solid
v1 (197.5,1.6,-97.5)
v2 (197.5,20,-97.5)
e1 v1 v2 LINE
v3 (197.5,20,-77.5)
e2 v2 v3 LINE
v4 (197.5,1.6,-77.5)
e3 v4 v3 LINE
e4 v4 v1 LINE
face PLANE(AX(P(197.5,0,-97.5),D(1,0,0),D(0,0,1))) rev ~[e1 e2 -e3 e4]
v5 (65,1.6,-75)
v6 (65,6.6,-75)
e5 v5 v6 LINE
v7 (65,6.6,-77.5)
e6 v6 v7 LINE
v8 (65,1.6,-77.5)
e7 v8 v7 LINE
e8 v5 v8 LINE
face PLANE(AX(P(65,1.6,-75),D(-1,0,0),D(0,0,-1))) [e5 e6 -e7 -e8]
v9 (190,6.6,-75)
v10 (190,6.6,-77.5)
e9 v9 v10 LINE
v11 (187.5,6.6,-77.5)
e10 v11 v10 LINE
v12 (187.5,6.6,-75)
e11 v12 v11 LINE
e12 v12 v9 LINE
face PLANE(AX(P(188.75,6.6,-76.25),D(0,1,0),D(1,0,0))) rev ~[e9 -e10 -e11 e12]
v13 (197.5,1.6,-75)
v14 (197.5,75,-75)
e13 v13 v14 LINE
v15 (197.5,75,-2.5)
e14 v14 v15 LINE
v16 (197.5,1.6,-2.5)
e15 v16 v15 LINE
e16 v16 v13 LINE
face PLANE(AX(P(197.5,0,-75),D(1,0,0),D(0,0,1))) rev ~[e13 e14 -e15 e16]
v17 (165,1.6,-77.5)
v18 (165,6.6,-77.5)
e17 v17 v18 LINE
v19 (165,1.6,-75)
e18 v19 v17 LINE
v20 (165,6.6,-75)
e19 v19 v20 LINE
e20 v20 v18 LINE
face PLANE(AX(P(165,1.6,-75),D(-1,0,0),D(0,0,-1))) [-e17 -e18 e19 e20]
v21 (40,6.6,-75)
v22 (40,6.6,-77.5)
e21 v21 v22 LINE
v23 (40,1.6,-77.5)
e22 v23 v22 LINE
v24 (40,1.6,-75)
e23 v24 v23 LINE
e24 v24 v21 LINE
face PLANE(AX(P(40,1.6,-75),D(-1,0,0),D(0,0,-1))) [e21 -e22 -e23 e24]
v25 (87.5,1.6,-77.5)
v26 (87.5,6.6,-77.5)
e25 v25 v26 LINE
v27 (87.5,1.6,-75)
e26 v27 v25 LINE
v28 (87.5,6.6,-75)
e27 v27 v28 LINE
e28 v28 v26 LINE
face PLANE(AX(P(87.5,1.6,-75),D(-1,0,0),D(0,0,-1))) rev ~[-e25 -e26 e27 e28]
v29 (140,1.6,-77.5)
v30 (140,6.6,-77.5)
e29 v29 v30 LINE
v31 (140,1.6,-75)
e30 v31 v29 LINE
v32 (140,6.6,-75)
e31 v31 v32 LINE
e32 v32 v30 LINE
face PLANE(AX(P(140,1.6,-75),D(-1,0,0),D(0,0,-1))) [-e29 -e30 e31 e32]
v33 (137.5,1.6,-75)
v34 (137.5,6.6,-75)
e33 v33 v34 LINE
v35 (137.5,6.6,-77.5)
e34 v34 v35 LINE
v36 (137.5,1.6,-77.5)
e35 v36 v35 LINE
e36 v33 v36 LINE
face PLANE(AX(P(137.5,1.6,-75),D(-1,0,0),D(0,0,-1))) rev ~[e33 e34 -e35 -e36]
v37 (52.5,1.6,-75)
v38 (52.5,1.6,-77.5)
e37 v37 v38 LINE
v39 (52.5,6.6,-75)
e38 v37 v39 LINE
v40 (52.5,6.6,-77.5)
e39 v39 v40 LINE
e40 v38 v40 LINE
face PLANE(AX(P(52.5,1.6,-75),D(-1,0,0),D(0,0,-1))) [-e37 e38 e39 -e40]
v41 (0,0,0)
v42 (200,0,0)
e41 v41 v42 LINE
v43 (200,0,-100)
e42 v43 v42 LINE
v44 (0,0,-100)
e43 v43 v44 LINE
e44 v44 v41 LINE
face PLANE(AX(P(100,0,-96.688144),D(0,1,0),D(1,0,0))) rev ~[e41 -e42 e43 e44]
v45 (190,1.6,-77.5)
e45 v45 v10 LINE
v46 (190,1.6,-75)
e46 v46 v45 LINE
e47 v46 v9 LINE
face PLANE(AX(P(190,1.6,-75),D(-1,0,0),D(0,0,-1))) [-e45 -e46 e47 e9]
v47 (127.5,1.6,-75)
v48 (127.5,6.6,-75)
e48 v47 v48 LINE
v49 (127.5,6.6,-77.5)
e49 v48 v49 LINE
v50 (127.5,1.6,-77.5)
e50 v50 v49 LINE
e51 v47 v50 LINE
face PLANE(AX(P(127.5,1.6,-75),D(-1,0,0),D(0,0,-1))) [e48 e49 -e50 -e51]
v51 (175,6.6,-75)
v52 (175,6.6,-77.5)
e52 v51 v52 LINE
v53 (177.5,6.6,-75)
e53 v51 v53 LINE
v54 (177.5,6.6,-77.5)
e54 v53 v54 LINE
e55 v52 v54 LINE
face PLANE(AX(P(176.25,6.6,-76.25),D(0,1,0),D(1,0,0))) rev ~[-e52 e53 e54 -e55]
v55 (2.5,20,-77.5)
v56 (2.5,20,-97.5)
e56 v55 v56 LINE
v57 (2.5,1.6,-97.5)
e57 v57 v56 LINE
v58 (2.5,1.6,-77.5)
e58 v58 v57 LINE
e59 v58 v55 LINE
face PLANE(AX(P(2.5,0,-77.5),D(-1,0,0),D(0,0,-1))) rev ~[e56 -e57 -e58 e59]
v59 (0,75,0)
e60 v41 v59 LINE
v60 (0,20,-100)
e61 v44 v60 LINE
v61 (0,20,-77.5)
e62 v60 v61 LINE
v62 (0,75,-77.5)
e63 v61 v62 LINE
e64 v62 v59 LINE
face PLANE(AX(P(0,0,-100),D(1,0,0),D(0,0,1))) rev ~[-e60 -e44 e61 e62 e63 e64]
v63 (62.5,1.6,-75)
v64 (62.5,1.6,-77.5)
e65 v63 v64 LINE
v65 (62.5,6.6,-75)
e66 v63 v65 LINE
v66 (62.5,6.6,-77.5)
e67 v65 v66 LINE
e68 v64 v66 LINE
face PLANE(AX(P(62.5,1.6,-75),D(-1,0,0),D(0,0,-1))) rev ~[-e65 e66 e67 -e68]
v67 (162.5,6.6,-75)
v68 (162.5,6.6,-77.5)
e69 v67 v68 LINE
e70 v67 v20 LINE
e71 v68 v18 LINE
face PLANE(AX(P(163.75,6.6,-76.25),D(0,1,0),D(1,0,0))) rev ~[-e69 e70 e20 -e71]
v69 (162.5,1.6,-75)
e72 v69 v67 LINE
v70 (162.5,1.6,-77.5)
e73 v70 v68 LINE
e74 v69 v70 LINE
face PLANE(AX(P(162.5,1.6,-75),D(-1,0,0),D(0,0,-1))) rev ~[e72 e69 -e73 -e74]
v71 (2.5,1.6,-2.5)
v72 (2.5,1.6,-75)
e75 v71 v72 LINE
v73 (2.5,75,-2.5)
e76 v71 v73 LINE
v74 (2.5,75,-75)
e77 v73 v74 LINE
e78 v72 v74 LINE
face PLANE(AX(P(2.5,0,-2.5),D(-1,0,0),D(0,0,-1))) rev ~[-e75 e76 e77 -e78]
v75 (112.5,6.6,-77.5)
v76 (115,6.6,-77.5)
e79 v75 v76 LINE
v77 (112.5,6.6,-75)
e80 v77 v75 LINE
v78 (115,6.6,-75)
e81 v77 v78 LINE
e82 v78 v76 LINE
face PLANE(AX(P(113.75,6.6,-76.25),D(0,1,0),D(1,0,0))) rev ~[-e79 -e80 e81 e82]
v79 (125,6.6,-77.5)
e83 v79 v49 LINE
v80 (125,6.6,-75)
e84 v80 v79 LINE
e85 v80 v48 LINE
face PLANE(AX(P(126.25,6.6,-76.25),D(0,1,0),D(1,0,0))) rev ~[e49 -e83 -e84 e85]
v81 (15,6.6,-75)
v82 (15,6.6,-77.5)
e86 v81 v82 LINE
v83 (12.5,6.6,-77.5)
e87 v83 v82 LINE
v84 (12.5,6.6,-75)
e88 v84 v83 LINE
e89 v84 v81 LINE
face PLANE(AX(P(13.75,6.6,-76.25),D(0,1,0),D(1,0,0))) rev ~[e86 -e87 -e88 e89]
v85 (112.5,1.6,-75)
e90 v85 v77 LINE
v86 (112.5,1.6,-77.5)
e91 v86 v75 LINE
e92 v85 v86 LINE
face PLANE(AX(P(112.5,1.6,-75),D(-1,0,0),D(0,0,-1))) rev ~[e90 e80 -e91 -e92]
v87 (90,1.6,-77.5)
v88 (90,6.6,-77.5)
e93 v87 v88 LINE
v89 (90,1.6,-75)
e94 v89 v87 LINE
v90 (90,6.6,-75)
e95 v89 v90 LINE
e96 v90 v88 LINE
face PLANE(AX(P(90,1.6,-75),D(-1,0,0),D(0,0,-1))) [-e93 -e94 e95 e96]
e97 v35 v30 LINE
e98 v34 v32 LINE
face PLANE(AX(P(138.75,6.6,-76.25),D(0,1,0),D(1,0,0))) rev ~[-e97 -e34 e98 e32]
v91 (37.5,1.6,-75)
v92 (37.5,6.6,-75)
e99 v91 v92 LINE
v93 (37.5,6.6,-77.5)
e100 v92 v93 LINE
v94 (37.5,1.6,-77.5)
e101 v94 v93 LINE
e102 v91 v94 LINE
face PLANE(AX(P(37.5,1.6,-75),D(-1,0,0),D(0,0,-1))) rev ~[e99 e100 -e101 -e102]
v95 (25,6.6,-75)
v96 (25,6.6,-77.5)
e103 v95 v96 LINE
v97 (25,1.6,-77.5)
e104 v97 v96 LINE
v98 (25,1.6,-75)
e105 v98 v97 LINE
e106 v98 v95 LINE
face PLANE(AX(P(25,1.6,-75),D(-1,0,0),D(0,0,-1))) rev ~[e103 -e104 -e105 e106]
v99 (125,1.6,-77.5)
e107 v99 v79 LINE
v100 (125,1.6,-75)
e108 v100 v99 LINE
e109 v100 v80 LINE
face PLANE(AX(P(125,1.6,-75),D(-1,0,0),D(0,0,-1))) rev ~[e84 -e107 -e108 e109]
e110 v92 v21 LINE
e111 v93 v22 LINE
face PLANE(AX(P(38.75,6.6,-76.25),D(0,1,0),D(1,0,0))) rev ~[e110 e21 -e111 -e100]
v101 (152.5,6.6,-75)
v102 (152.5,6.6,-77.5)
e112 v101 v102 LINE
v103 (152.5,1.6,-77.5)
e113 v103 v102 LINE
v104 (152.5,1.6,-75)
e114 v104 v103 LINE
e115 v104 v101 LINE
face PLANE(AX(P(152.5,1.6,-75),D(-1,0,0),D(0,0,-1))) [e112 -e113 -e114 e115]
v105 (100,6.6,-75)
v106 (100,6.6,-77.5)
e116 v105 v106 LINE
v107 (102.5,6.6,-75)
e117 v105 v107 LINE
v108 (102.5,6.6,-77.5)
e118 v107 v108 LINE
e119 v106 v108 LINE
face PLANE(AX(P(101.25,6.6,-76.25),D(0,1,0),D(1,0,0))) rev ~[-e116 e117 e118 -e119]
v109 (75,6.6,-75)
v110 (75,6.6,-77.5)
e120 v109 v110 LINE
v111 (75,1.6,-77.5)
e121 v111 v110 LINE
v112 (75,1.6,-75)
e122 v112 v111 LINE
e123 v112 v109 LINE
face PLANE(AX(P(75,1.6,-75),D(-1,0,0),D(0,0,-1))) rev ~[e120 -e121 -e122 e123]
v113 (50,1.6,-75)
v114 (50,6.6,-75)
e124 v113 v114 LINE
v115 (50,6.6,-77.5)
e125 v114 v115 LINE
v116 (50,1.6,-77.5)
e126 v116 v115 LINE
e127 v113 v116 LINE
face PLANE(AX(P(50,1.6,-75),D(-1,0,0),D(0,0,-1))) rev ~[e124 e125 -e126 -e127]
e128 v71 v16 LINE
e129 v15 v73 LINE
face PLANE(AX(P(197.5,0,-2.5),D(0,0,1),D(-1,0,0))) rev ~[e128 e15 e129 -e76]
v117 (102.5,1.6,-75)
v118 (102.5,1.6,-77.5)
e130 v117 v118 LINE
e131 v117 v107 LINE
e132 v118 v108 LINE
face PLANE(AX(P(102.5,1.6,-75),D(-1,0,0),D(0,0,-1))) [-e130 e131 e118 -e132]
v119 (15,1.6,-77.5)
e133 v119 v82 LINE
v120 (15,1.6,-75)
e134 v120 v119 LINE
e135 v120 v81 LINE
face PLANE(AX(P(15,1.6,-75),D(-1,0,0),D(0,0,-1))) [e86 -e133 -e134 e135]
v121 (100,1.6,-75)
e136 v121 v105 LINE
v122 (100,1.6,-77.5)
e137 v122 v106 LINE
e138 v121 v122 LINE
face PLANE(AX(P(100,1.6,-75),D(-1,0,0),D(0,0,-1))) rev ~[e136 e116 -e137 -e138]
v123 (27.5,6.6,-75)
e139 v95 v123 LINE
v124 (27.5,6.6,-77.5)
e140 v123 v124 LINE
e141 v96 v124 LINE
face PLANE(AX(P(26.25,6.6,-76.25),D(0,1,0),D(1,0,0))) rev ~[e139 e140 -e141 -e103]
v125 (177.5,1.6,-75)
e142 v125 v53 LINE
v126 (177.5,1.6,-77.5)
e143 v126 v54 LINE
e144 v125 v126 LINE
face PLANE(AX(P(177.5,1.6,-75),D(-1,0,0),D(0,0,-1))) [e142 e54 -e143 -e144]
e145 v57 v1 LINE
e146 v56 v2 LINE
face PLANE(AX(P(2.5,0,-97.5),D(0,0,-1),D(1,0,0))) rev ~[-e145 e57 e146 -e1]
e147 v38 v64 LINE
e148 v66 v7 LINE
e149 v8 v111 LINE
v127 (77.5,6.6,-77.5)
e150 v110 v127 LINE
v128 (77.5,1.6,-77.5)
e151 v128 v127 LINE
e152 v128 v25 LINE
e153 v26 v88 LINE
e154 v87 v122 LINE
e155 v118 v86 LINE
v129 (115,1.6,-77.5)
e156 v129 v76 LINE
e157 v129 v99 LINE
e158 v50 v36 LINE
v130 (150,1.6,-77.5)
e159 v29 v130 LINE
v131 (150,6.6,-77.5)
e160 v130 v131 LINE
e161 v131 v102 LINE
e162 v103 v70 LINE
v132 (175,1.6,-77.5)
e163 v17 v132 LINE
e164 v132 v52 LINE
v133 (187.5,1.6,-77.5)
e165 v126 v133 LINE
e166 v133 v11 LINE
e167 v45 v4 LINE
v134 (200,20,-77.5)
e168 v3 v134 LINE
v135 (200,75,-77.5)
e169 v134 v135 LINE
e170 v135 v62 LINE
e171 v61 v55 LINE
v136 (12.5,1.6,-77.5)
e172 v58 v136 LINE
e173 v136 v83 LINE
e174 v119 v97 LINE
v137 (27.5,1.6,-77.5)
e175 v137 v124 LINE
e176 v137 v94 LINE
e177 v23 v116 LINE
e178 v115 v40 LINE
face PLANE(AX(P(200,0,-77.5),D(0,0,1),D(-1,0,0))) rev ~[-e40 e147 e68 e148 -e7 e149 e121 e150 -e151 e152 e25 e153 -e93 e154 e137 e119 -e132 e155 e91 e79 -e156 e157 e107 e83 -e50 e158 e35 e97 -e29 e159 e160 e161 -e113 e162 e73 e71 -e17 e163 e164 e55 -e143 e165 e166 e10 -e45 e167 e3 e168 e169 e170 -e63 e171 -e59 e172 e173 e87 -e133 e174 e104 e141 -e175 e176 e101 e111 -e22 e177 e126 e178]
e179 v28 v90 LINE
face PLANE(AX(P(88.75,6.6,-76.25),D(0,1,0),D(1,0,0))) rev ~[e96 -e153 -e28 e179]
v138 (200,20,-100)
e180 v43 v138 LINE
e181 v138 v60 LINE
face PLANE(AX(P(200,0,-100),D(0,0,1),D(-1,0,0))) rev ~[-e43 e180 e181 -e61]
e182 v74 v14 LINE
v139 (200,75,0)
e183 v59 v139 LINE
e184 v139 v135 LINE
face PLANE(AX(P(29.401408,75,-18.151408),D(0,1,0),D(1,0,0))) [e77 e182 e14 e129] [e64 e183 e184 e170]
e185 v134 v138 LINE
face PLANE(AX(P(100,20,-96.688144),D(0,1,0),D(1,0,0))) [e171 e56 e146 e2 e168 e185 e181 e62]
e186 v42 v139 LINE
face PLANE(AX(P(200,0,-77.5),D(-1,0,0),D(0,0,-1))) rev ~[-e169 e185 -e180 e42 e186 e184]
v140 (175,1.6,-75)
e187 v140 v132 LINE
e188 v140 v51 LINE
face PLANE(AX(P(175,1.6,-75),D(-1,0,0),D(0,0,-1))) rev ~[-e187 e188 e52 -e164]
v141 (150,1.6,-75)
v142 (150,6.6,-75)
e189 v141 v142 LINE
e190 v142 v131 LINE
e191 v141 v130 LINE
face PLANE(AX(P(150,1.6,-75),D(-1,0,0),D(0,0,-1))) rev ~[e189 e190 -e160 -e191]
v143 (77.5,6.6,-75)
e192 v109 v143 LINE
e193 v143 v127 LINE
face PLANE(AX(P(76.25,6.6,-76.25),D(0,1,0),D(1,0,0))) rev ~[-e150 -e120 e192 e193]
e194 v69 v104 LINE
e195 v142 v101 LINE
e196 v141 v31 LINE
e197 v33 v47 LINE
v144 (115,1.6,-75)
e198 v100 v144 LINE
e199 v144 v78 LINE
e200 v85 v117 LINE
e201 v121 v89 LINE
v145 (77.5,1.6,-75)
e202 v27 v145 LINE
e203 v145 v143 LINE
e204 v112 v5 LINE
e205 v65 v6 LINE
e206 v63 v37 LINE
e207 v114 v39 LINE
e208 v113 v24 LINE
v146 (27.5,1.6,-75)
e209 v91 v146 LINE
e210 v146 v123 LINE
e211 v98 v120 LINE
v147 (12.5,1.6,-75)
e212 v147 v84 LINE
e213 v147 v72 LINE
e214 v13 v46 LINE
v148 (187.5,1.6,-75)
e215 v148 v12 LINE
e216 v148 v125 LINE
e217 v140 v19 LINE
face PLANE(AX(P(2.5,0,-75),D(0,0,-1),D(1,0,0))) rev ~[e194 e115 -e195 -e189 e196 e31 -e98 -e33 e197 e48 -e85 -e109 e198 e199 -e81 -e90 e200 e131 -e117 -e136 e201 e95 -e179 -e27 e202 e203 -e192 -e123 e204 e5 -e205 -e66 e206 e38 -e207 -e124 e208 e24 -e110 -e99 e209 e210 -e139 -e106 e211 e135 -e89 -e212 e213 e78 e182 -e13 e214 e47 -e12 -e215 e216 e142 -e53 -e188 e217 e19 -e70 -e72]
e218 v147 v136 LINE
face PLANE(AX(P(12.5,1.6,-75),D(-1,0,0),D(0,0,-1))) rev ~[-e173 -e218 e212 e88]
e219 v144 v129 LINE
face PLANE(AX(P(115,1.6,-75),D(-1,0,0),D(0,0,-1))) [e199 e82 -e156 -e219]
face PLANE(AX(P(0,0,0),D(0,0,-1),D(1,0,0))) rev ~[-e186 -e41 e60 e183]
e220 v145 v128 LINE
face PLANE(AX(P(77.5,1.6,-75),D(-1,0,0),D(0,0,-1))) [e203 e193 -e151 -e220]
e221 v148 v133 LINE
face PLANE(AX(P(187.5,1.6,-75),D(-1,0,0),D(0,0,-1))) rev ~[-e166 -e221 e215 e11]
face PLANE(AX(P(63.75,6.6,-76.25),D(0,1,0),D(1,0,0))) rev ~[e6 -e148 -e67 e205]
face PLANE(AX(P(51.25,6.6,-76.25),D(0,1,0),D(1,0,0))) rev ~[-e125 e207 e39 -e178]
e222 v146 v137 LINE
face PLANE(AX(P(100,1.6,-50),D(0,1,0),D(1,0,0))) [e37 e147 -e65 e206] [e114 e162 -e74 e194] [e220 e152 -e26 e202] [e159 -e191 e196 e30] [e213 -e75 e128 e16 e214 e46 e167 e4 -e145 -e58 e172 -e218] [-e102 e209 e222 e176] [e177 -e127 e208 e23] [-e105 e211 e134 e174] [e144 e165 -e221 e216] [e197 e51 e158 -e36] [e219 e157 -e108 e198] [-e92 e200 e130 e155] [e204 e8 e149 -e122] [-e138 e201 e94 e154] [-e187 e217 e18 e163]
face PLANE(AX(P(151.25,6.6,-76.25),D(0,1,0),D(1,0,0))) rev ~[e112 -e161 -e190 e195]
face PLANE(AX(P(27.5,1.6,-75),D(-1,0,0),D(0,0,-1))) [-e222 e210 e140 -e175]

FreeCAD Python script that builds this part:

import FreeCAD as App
import Part
import Sketcher
Q = App.Units.Quantity

doc = App.newDocument("Part")
body = doc.addObject("PartDesign::Body", "Body")

# Sketch on XZ plane
sketch1 = doc.addObject("Sketcher::SketchObject", "Sketch")
body.addObject(sketch1)
sketch1.AttachmentSupport = (doc.XZ_Plane, [""])
sketch1.MapMode = "FlatFace"
sketch1.addGeometry(Part.LineSegment(App.Vector(2, -98, 0), App.Vector(2, -2, 0)), False)
sketch1.addGeometry(Part.LineSegment(App.Vector(2, -2, 0), App.Vector(198, -2, 0)), False)
sketch1.addGeometry(Part.LineSegment(App.Vector(198, -2, 0), App.Vector(198, -98, 0)), False)
sketch1.addGeometry(Part.LineSegment(App.Vector(198, -98, 0), App.Vector(2, -98, 0)), False)
sketch1.addConstraint(Sketcher.Constraint("Coincident", 0, 2, 1, 1))
sketch1.addConstraint(Sketcher.Constraint("Coincident", 1, 2, 2, 1))
sketch1.addConstraint(Sketcher.Constraint("Coincident", 2, 2, 3, 1))
sketch1.addConstraint(Sketcher.Constraint("Coincident", 3, 2, 0, 1))
sketch1.addConstraint(Sketcher.Constraint("Vertical", 0))
sketch1.addConstraint(Sketcher.Constraint("Horizontal", 1))
sketch1.addConstraint(Sketcher.Constraint("Vertical", 2))
sketch1.addConstraint(Sketcher.Constraint("Horizontal", 3))
sketch1.addConstraint(Sketcher.Constraint("DistanceX", 1, 1, 1, 2, Q("195 mm")))
sketch1.addConstraint(Sketcher.Constraint("DistanceY", 0, 1, 0, 2, Q("95 mm")))
sketch1.addConstraint(Sketcher.Constraint("DistanceX", -1, 1, 0, 2, Q("2.5 mm")))
sketch1.addConstraint(Sketcher.Constraint("DistanceY", 0, 2, -1, 1, Q("2.5 mm")))
pad1 = doc.addObject("PartDesign::Pad", "Pad")
body.addObject(pad1)
pad1.Profile = sketch1
pad1.Length = 1.6
pad1.Reversed = True

# Sketch on XZ plane
sketch2 = doc.addObject("Sketcher::SketchObject", "Sketch001")
body.addObject(sketch2)
sketch2.AttachmentSupport = (doc.XZ_Plane, [""])
sketch2.MapMode = "FlatFace"
sketch2.addGeometry(Part.LineSegment(App.Vector(0, 0, 0), App.Vector(200, 0, 0)), False)
sketch2.addGeometry(Part.LineSegment(App.Vector(200, 0, 0), App.Vector(200, -78, 0)), False)
sketch2.addGeometry(Part.LineSegment(App.Vector(200, -78, 0), App.Vector(0, -78, 0)), False)
sketch2.addGeometry(Part.LineSegment(App.Vector(0, -78, 0), App.Vector(0, 0, 0)), False)
sketch2.addGeometry(Part.LineSegment(App.Vector(198, -75, 0), App.Vector(198, -2, 0)), False)
sketch2.addGeometry(Part.LineSegment(App.Vector(198, -2, 0), App.Vector(2, -2, 0)), False)
sketch2.addGeometry(Part.LineSegment(App.Vector(2, -2, 0), App.Vector(2, -75, 0)), False)
sketch2.addGeometry(Part.LineSegment(App.Vector(2, -75, 0), App.Vector(198, -75, 0)), False)
sketch2.addConstraint(Sketcher.Constraint("Coincident", 0, 2, 1, 1))
sketch2.addConstraint(Sketcher.Constraint("Coincident", 1, 2, 2, 1))
sketch2.addConstraint(Sketcher.Constraint("Coincident", 2, 2, 3, 1))
sketch2.addConstraint(Sketcher.Constraint("Coincident", 3, 2, 0, 1))
sketch2.addConstraint(Sketcher.Constraint("Coincident", 4, 2, 5, 1))
sketch2.addConstraint(Sketcher.Constraint("Coincident", 5, 2, 6, 1))
sketch2.addConstraint(Sketcher.Constraint("Coincident", 6, 2, 7, 1))
sketch2.addConstraint(Sketcher.Constraint("Coincident", 7, 2, 4, 1))
sketch2.addConstraint(Sketcher.Constraint("Horizontal", 0))
sketch2.addConstraint(Sketcher.Constraint("Vertical", 1))
sketch2.addConstraint(Sketcher.Constraint("Horizontal", 2))
sketch2.addConstraint(Sketcher.Constraint("Vertical", 3))
sketch2.addConstraint(Sketcher.Constraint("Vertical", 4))
sketch2.addConstraint(Sketcher.Constraint("Horizontal", 5))
sketch2.addConstraint(Sketcher.Constraint("Vertical", 6))
sketch2.addConstraint(Sketcher.Constraint("Horizontal", 7))
sketch2.addConstraint(Sketcher.Constraint("Coincident", 3, 2, -1, 1))
sketch2.addConstraint(Sketcher.Constraint("DistanceX", 0, 1, 0, 2, Q("200 mm")))
sketch2.addConstraint(Sketcher.Constraint("DistanceX", 5, 2, 5, 1, Q("195 mm")))
sketch2.addConstraint(Sketcher.Constraint("DistanceY", 1, 2, 1, 1, Q("77.5 mm")))
sketch2.addConstraint(Sketcher.Constraint("DistanceY", 4, 1, 4, 2, Q("72.5 mm")))
sketch2.addConstraint(Sketcher.Constraint("DistanceY", 6, 2, -1, 1, Q("75 mm")))
sketch2.addConstraint(Sketcher.Constraint("DistanceX", -1, 1, 4, 2, Q("197.5 mm")))
pad2 = doc.addObject("PartDesign::Pad", "Pad001")
body.addObject(pad2)
pad2.Profile = sketch2
pad2.Length = 75
pad2.Reversed = True

# Sketch on XZ plane
sketch3 = doc.addObject("Sketcher::SketchObject", "Sketch002")
body.addObject(sketch3)
sketch3.AttachmentSupport = (doc.XZ_Plane, [""])
sketch3.MapMode = "FlatFace"
sketch3.addGeometry(Part.LineSegment(App.Vector(0, -100, 0), App.Vector(0, -77.5, 0)), False)
sketch3.addGeometry(Part.LineSegment(App.Vector(0, -77.5, 0), App.Vector(2.5, -77.5, 0)), False)
sketch3.addGeometry(Part.LineSegment(App.Vector(2.5, -77.5, 0), App.Vector(2.5, -97.5, 0)), False)
sketch3.addGeometry(Part.LineSegment(App.Vector(2.5, -97.5, 0), App.Vector(197.5, -97.5, 0)), False)
sketch3.addGeometry(Part.LineSegment(App.Vector(197.5, -97.5, 0), App.Vector(197.5, -77.5, 0)), False)
sketch3.addGeometry(Part.LineSegment(App.Vector(197.5, -77.5, 0), App.Vector(200, -77.5, 0)), False)
sketch3.addGeometry(Part.LineSegment(App.Vector(200, -77.5, 0), App.Vector(200, -100, 0)), False)
sketch3.addGeometry(Part.LineSegment(App.Vector(200, -100, 0), App.Vector(0, -100, 0)), False)
sketch3.addConstraint(Sketcher.Constraint("Coincident", 0, 2, 1, 1))
sketch3.addConstraint(Sketcher.Constraint("Coincident", 1, 2, 2, 1))
sketch3.addConstraint(Sketcher.Constraint("Coincident", 2, 2, 3, 1))
sketch3.addConstraint(Sketcher.Constraint("Coincident", 3, 2, 4, 1))
sketch3.addConstraint(Sketcher.Constraint("Coincident", 4, 2, 5, 1))
sketch3.addConstraint(Sketcher.Constraint("Coincident", 5, 2, 6, 1))
sketch3.addConstraint(Sketcher.Constraint("Coincident", 6, 2, 7, 1))
sketch3.addConstraint(Sketcher.Constraint("Coincident", 7, 2, 0, 1))
sketch3.addConstraint(Sketcher.Constraint("Vertical", 0))
sketch3.addConstraint(Sketcher.Constraint("Horizontal", 1))
sketch3.addConstraint(Sketcher.Constraint("Vertical", 2))
sketch3.addConstraint(Sketcher.Constraint("Horizontal", 3))
sketch3.addConstraint(Sketcher.Constraint("Vertical", 4))
sketch3.addConstraint(Sketcher.Constraint("Horizontal", 5))
sketch3.addConstraint(Sketcher.Constraint("Vertical", 6))
sketch3.addConstraint(Sketcher.Constraint("Horizontal", 7))
sketch3.addConstraint(Sketcher.Constraint("PointOnObject", 0, 2, -2))
sketch3.addConstraint(Sketcher.Constraint("Horizontal", 1, 2, 4, 2))
sketch3.addConstraint(Sketcher.Constraint("Equal", 1, 5))
sketch3.addConstraint(Sketcher.Constraint("DistanceX", 3, 1, 3, 2, Q("195 mm")))
sketch3.addConstraint(Sketcher.Constraint("DistanceX", 7, 2, 7, 1, Q("200 mm")))
sketch3.addConstraint(Sketcher.Constraint("DistanceY", 2, 2, 2, 1, Q("20 mm")))
sketch3.addConstraint(Sketcher.Constraint("DistanceY", 0, 1, 0, 2, Q("22.5 mm")))
sketch3.addConstraint(Sketcher.Constraint("DistanceY", 6, 2, -1, 1, Q("100 mm")))
pad3 = doc.addObject("PartDesign::Pad", "Pad002")
body.addObject(pad3)
pad3.Profile = sketch3
pad3.Length = 20
pad3.Reversed = True

# Sketch on XZ plane
sketch4 = doc.addObject("Sketcher::SketchObject", "Sketch003")
body.addObject(sketch4)
sketch4.AttachmentSupport = (doc.XZ_Plane, [""])
sketch4.MapMode = "FlatFace"
sketch4.AttachmentOffset = App.Placement(App.Vector(0, 0, -1.6), App.Rotation())
sketch4.addGeometry(Part.LineSegment(App.Vector(187.5, -77.5, 0), App.Vector(187.5, -75, 0)), False)
sketch4.addGeometry(Part.LineSegment(App.Vector(187.5, -75, 0), App.Vector(190, -75, 0)), False)
sketch4.addGeometry(Part.LineSegment(App.Vector(190, -75, 0), App.Vector(190, -77.5, 0)), False)
sketch4.addGeometry(Part.LineSegment(App.Vector(190, -77.5, 0), App.Vector(187.5, -77.5, 0)), False)
sketch4.addGeometry(Part.LineSegment(App.Vector(175, -77.5, 0), App.Vector(175, -75, 0)), False)
sketch4.addGeometry(Part.LineSegment(App.Vector(175, -75, 0), App.Vector(177.5, -75, 0)), False)
sketch4.addGeometry(Part.LineSegment(App.Vector(177.5, -75, 0), App.Vector(177.5, -77.5, 0)), False)
sketch4.addGeometry(Part.LineSegment(App.Vector(177.5, -77.5, 0), App.Vector(175, -77.5, 0)), False)
sketch4.addGeometry(Part.LineSegment(App.Vector(162.5, -77.5, 0), App.Vector(162.5, -75, 0)), False)
sketch4.addGeometry(Part.LineSegment(App.Vector(162.5, -75, 0), App.Vector(165, -75, 0)), False)
sketch4.addGeometry(Part.LineSegment(App.Vector(165, -75, 0), App.Vector(165, -77.5, 0)), False)
sketch4.addGeometry(Part.LineSegment(App.Vector(165, -77.5, 0), App.Vector(162.5, -77.5, 0)), False)
sketch4.addGeometry(Part.LineSegment(App.Vector(150, -77.5, 0), App.Vector(150, -75, 0)), False)
sketch4.addGeometry(Part.LineSegment(App.Vector(150, -75, 0), App.Vector(152.5, -75, 0)), False)
sketch4.addGeometry(Part.LineSegment(App.Vector(152.5, -75, 0), App.Vector(152.5, -77.5, 0)), False)
sketch4.addGeometry(Part.LineSegment(App.Vector(152.5, -77.5, 0), App.Vector(150, -77.5, 0)), False)
sketch4.addGeometry(Part.LineSegment(App.Vector(137.5, -77.5, 0), App.Vector(137.5, -75, 0)), False)
sketch4.addGeometry(Part.LineSegment(App.Vector(137.5, -75, 0), App.Vector(140, -75, 0)), False)
sketch4.addGeometry(Part.LineSegment(App.Vector(140, -75, 0), App.Vector(140, -77.5, 0)), False)
sketch4.addGeometry(Part.LineSegment(App.Vector(140, -77.5, 0), App.Vector(137.5, -77.5, 0)), False)
sketch4.addGeometry(Part.LineSegment(App.Vector(125, -77.5, 0), App.Vector(125, -75, 0)), False)
sketch4.addGeometry(Part.LineSegment(App.Vector(125, -75, 0), App.Vector(127.5, -75, 0)), False)
sketch4.addGeometry(Part.LineSegment(App.Vector(127.5, -75, 0), App.Vector(127.5, -77.5, 0)), False)
sketch4.addGeometry(Part.LineSegment(App.Vector(127.5, -77.5, 0), App.Vector(125, -77.5, 0)), False)
sketch4.addGeometry(Part.LineSegment(App.Vector(112.5, -77.5, 0), App.Vector(112.5, -75, 0)), False)
sketch4.addGeometry(Part.LineSegment(App.Vector(112.5, -75, 0), App.Vector(115, -75, 0)), False)
sketch4.addGeometry(Part.LineSegment(App.Vector(115, -75, 0), App.Vector(115, -77.5, 0)), False)
sketch4.addGeometry(Part.LineSegment(App.Vector(115, -77.5, 0), App.Vector(112.5, -77.5, 0)), False)
sketch4.addGeometry(Part.LineSegment(App.Vector(100, -77.5, 0), App.Vector(100, -75, 0)), False)
sketch4.addGeometry(Part.LineSegment(App.Vector(100, -75, 0), App.Vector(102.5, -75, 0)), False)
sketch4.addGeometry(Part.LineSegment(App.Vector(102.5, -75, 0), App.Vector(102.5, -77.5, 0)), False)
sketch4.addGeometry(Part.LineSegment(App.Vector(102.5, -77.5, 0), App.Vector(100, -77.5, 0)), False)
sketch4.addGeometry(Part.LineSegment(App.Vector(87.5, -77.5, 0), App.Vector(87.5, -75, 0)), False)
sketch4.addGeometry(Part.LineSegment(App.Vector(87.5, -75, 0), App.Vector(90, -75, 0)), False)
sketch4.addGeometry(Part.LineSegment(App.Vector(90, -75, 0), App.Vector(90, -77.5, 0)), False)
sketch4.addGeometry(Part.LineSegment(App.Vector(90, -77.5, 0), App.Vector(87.5, -77.5, 0)), False)
sketch4.addGeometry(Part.LineSegment(App.Vector(75, -77.5, 0), App.Vector(75, -75, 0)), False)
sketch4.addGeometry(Part.LineSegment(App.Vector(75, -75, 0), App.Vector(77.5, -75, 0)), False)
sketch4.addGeometry(Part.LineSegment(App.Vector(77.5, -75, 0), App.Vector(77.5, -77.5, 0)), False)
sketch4.addGeometry(Part.LineSegment(App.Vector(77.5, -77.5, 0), App.Vector(75, -77.5, 0)), False)
sketch4.addGeometry(Part.LineSegment(App.Vector(62.5, -77.5, 0), App.Vector(62.5, -75, 0)), False)
sketch4.addGeometry(Part.LineSegment(App.Vector(62.5, -75, 0), App.Vector(65, -75, 0)), False)
sketch4.addGeometry(Part.LineSegment(App.Vector(65, -75, 0), App.Vector(65, -77.5, 0)), False)
sketch4.addGeometry(Part.LineSegment(App.Vector(65, -77.5, 0), App.Vector(62.5, -77.5, 0)), False)
sketch4.addGeometry(Part.LineSegment(App.Vector(50, -77.5, 0), App.Vector(50, -75, 0)), False)
sketch4.addGeometry(Part.LineSegment(App.Vector(50, -75, 0), App.Vector(52.5, -75, 0)), False)
sketch4.addGeometry(Part.LineSegment(App.Vector(52.5, -75, 0), App.Vector(52.5, -77.5, 0)), False)
sketch4.addGeometry(Part.LineSegment(App.Vector(52.5, -77.5, 0), App.Vector(50, -77.5, 0)), False)
sketch4.addGeometry(Part.LineSegment(App.Vector(37.5, -77.5, 0), App.Vector(37.5, -75, 0)), False)
sketch4.addGeometry(Part.LineSegment(App.Vector(37.5, -75, 0), App.Vector(40, -75, 0)), False)
sketch4.addGeometry(Part.LineSegment(App.Vector(40, -75, 0), App.Vector(40, -77.5, 0)), False)
sketch4.addGeometry(Part.LineSegment(App.Vector(40, -77.5, 0), App.Vector(37.5, -77.5, 0)), False)
sketch4.addGeometry(Part.LineSegment(App.Vector(25, -77.5, 0), App.Vector(25, -75, 0)), False)
sketch4.addGeometry(Part.LineSegment(App.Vector(25, -75, 0), App.Vector(27.5, -75, 0)), False)
sketch4.addGeometry(Part.LineSegment(App.Vector(27.5, -75, 0), App.Vector(27.5, -77.5, 0)), False)
sketch4.addGeometry(Part.LineSegment(App.Vector(27.5, -77.5, 0), App.Vector(25, -77.5, 0)), False)
sketch4.addGeometry(Part.LineSegment(App.Vector(12.5, -77.5, 0), App.Vector(12.5, -75, 0)), False)
sketch4.addGeometry(Part.LineSegment(App.Vector(12.5, -75, 0), App.Vector(15, -75, 0)), False)
sketch4.addGeometry(Part.LineSegment(App.Vector(15, -75, 0), App.Vector(15, -77.5, 0)), False)
sketch4.addGeometry(Part.LineSegment(App.Vector(15, -77.5, 0), App.Vector(12.5, -77.5, 0)), False)
sketch4.addConstraint(Sketcher.Constraint("Coincident", 0, 2, 1, 1))
sketch4.addConstraint(Sketcher.Constraint("Coincident", 1, 2, 2, 1))
sketch4.addConstraint(Sketcher.Constraint("Coincident", 2, 2, 3, 1))
sketch4.addConstraint(Sketcher.Constraint("Coincident", 3, 2, 0, 1))
sketch4.addConstraint(Sketcher.Constraint("Coincident", 4, 2, 5, 1))
sketch4.addConstraint(Sketcher.Constraint("Coincident", 5, 2, 6, 1))
sketch4.addConstraint(Sketcher.Constraint("Coincident", 6, 2, 7, 1))
sketch4.addConstraint(Sketcher.Constraint("Coincident", 7, 2, 4, 1))
sketch4.addConstraint(Sketcher.Constraint("Coincident", 8, 2, 9, 1))
sketch4.addConstraint(Sketcher.Constraint("Coincident", 9, 2, 10, 1))
sketch4.addConstraint(Sketcher.Constraint("Coincident", 10, 2, 11, 1))
sketch4.addConstraint(Sketcher.Constraint("Coincident", 11, 2, 8, 1))
sketch4.addConstraint(Sketcher.Constraint("Coincident", 12, 2, 13, 1))
sketch4.addConstraint(Sketcher.Constraint("Coincident", 13, 2, 14, 1))
sketch4.addConstraint(Sketcher.Constraint("Coincident", 14, 2, 15, 1))
sketch4.addConstraint(Sketcher.Constraint("Coincident", 15, 2, 12, 1))
sketch4.addConstraint(Sketcher.Constraint("Coincident", 16, 2, 17, 1))
sketch4.addConstraint(Sketcher.Constraint("Coincident", 17, 2, 18, 1))
sketch4.addConstraint(Sketcher.Constraint("Coincident", 18, 2, 19, 1))
sketch4.addConstraint(Sketcher.Constraint("Coincident", 19, 2, 16, 1))
sketch4.addConstraint(Sketcher.Constraint("Coincident", 20, 2, 21, 1))
sketch4.addConstraint(Sketcher.Constraint("Coincident", 21, 2, 22, 1))
sketch4.addConstraint(Sketcher.Constraint("Coincident", 22, 2, 23, 1))
sketch4.addConstraint(Sketcher.Constraint("Coincident", 23, 2, 20, 1))
sketch4.addConstraint(Sketcher.Constraint("Coincident", 24, 2, 25, 1))
sketch4.addConstraint(Sketcher.Constraint("Coincident", 25, 2, 26, 1))
sketch4.addConstraint(Sketcher.Constraint("Coincident", 26, 2, 27, 1))
sketch4.addConstraint(Sketcher.Constraint("Coincident", 27, 2, 24, 1))
sketch4.addConstraint(Sketcher.Constraint("Coincident", 28, 2, 29, 1))
sketch4.addConstraint(Sketcher.Constraint("Coincident", 29, 2, 30, 1))
sketch4.addConstraint(Sketcher.Constraint("Coincident", 30, 2, 31, 1))
sketch4.addConstraint(Sketcher.Constraint("Coincident", 31, 2, 28, 1))
sketch4.addConstraint(Sketcher.Constraint("Coincident", 32, 2, 33, 1))
sketch4.addConstraint(Sketcher.Constraint("Coincident", 33, 2, 34, 1))
sketch4.addConstraint(Sketcher.Constraint("Coincident", 34, 2, 35, 1))
sketch4.addConstraint(Sketcher.Constraint("Coincident", 35, 2, 32, 1))
sketch4.addConstraint(Sketcher.Constraint("Coincident", 36, 2, 37, 1))
sketch4.addConstraint(Sketcher.Constraint("Coincident", 37, 2, 38, 1))
sketch4.addConstraint(Sketcher.Constraint("Coincident", 38, 2, 39, 1))
sketch4.addConstraint(Sketcher.Constraint("Coincident", 39, 2, 36, 1))
sketch4.addConstraint(Sketcher.Constraint("Coincident", 40, 2, 41, 1))
sketch4.addConstraint(Sketcher.Constraint("Coincident", 41, 2, 42, 1))
sketch4.addConstraint(Sketcher.Constraint("Coincident", 42, 2, 43, 1))
sketch4.addConstraint(Sketcher.Constraint("Coincident", 43, 2, 40, 1))
sketch4.addConstraint(Sketcher.Constraint("Coincident", 44, 2, 45, 1))
sketch4.addConstraint(Sketcher.Constraint("Coincident", 45, 2, 46, 1))
sketch4.addConstraint(Sketcher.Constraint("Coincident", 46, 2, 47, 1))
sketch4.addConstraint(Sketcher.Constraint("Coincident", 47, 2, 44, 1))
sketch4.addConstraint(Sketcher.Constraint("Coincident", 48, 2, 49, 1))
sketch4.addConstraint(Sketcher.Constraint("Coincident", 49, 2, 50, 1))
sketch4.addConstraint(Sketcher.Constraint("Coincident", 50, 2, 51, 1))
sketch4.addConstraint(Sketcher.Constraint("Coincident", 51, 2, 48, 1))
sketch4.addConstraint(Sketcher.Constraint("Coincident", 52, 2, 53, 1))
sketch4.addConstraint(Sketcher.Constraint("Coincident", 53, 2, 54, 1))
sketch4.addConstraint(Sketcher.Constraint("Coincident", 54, 2, 55, 1))
sketch4.addConstraint(Sketcher.Constraint("Coincident", 55, 2, 52, 1))
sketch4.addConstraint(Sketcher.Constraint("Coincident", 56, 2, 57, 1))
sketch4.addConstraint(Sketcher.Constraint("Coincident", 57, 2, 58, 1))
sketch4.addConstraint(Sketcher.Constraint("Coincident", 58, 2, 59, 1))
sketch4.addConstraint(Sketcher.Constraint("Coincident", 59, 2, 56, 1))
sketch4.addConstraint(Sketcher.Constraint("Vertical", 0))
sketch4.addConstraint(Sketcher.Constraint("Horizontal", 1))
sketch4.addConstraint(Sketcher.Constraint("Vertical", 2))
sketch4.addConstraint(Sketcher.Constraint("Horizontal", 3))
sketch4.addConstraint(Sketcher.Constraint("Vertical", 4))
sketch4.addConstraint(Sketcher.Constraint("Horizontal", 5))
sketch4.addConstraint(Sketcher.Constraint("Vertical", 6))
sketch4.addConstraint(Sketcher.Constraint("Horizontal", 7))
sketch4.addConstraint(Sketcher.Constraint("Vertical", 8))
sketch4.addConstraint(Sketcher.Constraint("Horizontal", 9))
sketch4.addConstraint(Sketcher.Constraint("Vertical", 10))
sketch4.addConstraint(Sketcher.Constraint("Horizontal", 11))
sketch4.addConstraint(Sketcher.Constraint("Vertical", 12))
sketch4.addConstraint(Sketcher.Constraint("Horizontal", 13))
sketch4.addConstraint(Sketcher.Constraint("Vertical", 14))
sketch4.addConstraint(Sketcher.Constraint("Horizontal", 15))
sketch4.addConstraint(Sketcher.Constraint("Vertical", 16))
sketch4.addConstraint(Sketcher.Constraint("Horizontal", 17))
sketch4.addConstraint(Sketcher.Constraint("Vertical", 18))
sketch4.addConstraint(Sketcher.Constraint("Horizontal", 19))
sketch4.addConstraint(Sketcher.Constraint("Vertical", 20))
sketch4.addConstraint(Sketcher.Constraint("Horizontal", 21))
sketch4.addConstraint(Sketcher.Constraint("Vertical", 22))
sketch4.addConstraint(Sketcher.Constraint("Horizontal", 23))
sketch4.addConstraint(Sketcher.Constraint("Vertical", 24))
sketch4.addConstraint(Sketcher.Constraint("Horizontal", 25))
sketch4.addConstraint(Sketcher.Constraint("Vertical", 26))
sketch4.addConstraint(Sketcher.Constraint("Horizontal", 27))
sketch4.addConstraint(Sketcher.Constraint("Vertical", 28))
sketch4.addConstraint(Sketcher.Constraint("Horizontal", 29))
sketch4.addConstraint(Sketcher.Constraint("Vertical", 30))
sketch4.addConstraint(Sketcher.Constraint("Horizontal", 31))
sketch4.addConstraint(Sketcher.Constraint("Vertical", 32))
sketch4.addConstraint(Sketcher.Constraint("Horizontal", 33))
sketch4.addConstraint(Sketcher.Constraint("Vertical", 34))
sketch4.addConstraint(Sketcher.Constraint("Horizontal", 35))
sketch4.addConstraint(Sketcher.Constraint("Vertical", 36))
sketch4.addConstraint(Sketcher.Constraint("Horizontal", 37))
sketch4.addConstraint(Sketcher.Constraint("Vertical", 38))
sketch4.addConstraint(Sketcher.Constraint("Horizontal", 39))
sketch4.addConstraint(Sketcher.Constraint("Vertical", 40))
sketch4.addConstraint(Sketcher.Constraint("Horizontal", 41))
sketch4.addConstraint(Sketcher.Constraint("Vertical", 42))
sketch4.addConstraint(Sketcher.Constraint("Horizontal", 43))
sketch4.addConstraint(Sketcher.Constraint("Vertical", 44))
sketch4.addConstraint(Sketcher.Constraint("Horizontal", 45))
sketch4.addConstraint(Sketcher.Constraint("Vertical", 46))
sketch4.addConstraint(Sketcher.Constraint("Horizontal", 47))
sketch4.addConstraint(Sketcher.Constraint("Vertical", 48))
sketch4.addConstraint(Sketcher.Constraint("Horizontal", 49))
sketch4.addConstraint(Sketcher.Constraint("Vertical", 50))
sketch4.addConstraint(Sketcher.Constraint("Horizontal", 51))
sketch4.addConstraint(Sketcher.Constraint("Vertical", 52))
sketch4.addConstraint(Sketcher.Constraint("Horizontal", 53))
sketch4.addConstraint(Sketcher.Constraint("Vertical", 54))
sketch4.addConstraint(Sketcher.Constraint("Horizontal", 55))
sketch4.addConstraint(Sketcher.Constraint("Vertical", 56))
sketch4.addConstraint(Sketcher.Constraint("Horizontal", 57))
sketch4.addConstraint(Sketcher.Constraint("Vertical", 58))
sketch4.addConstraint(Sketcher.Constraint("Horizontal", 59))
sketch4.addConstraint(Sketcher.Constraint("Horizontal", 1, 2, 4, 2))
sketch4.addConstraint(Sketcher.Constraint("Horizontal", 3, 2, 6, 2))
sketch4.addConstraint(Sketcher.Constraint("Horizontal", 5, 2, 8, 2))
sketch4.addConstraint(Sketcher.Constraint("Horizontal", 7, 2, 10, 2))
sketch4.addConstraint(Sketcher.Constraint("Horizontal", 9, 2, 12, 2))
sketch4.addConstraint(Sketcher.Constraint("Horizontal", 11, 2, 14, 2))
sketch4.addConstraint(Sketcher.Constraint("Horizontal", 13, 2, 16, 2))
sketch4.addConstraint(Sketcher.Constraint("Horizontal", 15, 2, 18, 2))
sketch4.addConstraint(Sketcher.Constraint("Horizontal", 17, 2, 20, 2))
sketch4.addConstraint(Sketcher.Constraint("Horizontal", 19, 2, 22, 2))
sketch4.addConstraint(Sketcher.Constraint("Horizontal", 21, 2, 24, 2))
sketch4.addConstraint(Sketcher.Constraint("Horizontal", 23, 2, 26, 2))
sketch4.addConstraint(Sketcher.Constraint("Horizontal", 25, 2, 28, 2))
sketch4.addConstraint(Sketcher.Constraint("Horizontal", 27, 2, 30, 2))
sketch4.addConstraint(Sketcher.Constraint("Horizontal", 29, 2, 32, 2))
sketch4.addConstraint(Sketcher.Constraint("Horizontal", 31, 2, 34, 2))
sketch4.addConstraint(Sketcher.Constraint("Horizontal", 33, 2, 36, 2))
sketch4.addConstraint(Sketcher.Constraint("Horizontal", 35, 2, 38, 2))
sketch4.addConstraint(Sketcher.Constraint("Horizontal", 37, 2, 40, 2))
sketch4.addConstraint(Sketcher.Constraint("Horizontal", 39, 2, 42, 2))
sketch4.addConstraint(Sketcher.Constraint("Horizontal", 41, 2, 44, 2))
sketch4.addConstraint(Sketcher.Constraint("Horizontal", 43, 2, 46, 2))
sketch4.addConstraint(Sketcher.Constraint("Horizontal", 45, 2, 48, 2))
sketch4.addConstraint(Sketcher.Constraint("Horizontal", 47, 2, 50, 2))
sketch4.addConstraint(Sketcher.Constraint("Horizontal", 49, 2, 52, 2))
sketch4.addConstraint(Sketcher.Constraint("Horizontal", 51, 2, 54, 2))
sketch4.addConstraint(Sketcher.Constraint("Horizontal", 53, 2, 56, 2))
sketch4.addConstraint(Sketcher.Constraint("Horizontal", 55, 2, 58, 2))
sketch4.addConstraint(Sketcher.Constraint("Equal", 3, 5))
sketch4.addConstraint(Sketcher.Constraint("Equal", 7, 9))
sketch4.addConstraint(Sketcher.Constraint("Equal", 11, 13))
sketch4.addConstraint(Sketcher.Constraint("Equal", 15, 17))
sketch4.addConstraint(Sketcher.Constraint("Equal", 19, 21))
sketch4.addConstraint(Sketcher.Constraint("Equal", 23, 25))
sketch4.addConstraint(Sketcher.Constraint("Equal", 27, 29))
sketch4.addConstraint(Sketcher.Constraint("Equal", 31, 33))
sketch4.addConstraint(Sketcher.Constraint("Equal", 35, 37))
sketch4.addConstraint(Sketcher.Constraint("Equal", 39, 41))
sketch4.addConstraint(Sketcher.Constraint("Equal", 43, 45))
sketch4.addConstraint(Sketcher.Constraint("Equal", 47, 49))
sketch4.addConstraint(Sketcher.Constraint("Equal", 51, 53))
sketch4.addConstraint(Sketcher.Constraint("Equal", 55, 57))
sketch4.addConstraint(Sketcher.Constraint("Equal", 59, 0))
sketch4.addConstraint(Sketcher.Constraint("DistanceX", 1, 1, 1, 2, Q("2.5 mm")))
sketch4.addConstraint(Sketcher.Constraint("DistanceY", 0, 2, -1, 1, Q("75 mm")))
sketch4.addConstraint(Sketcher.Constraint("DistanceX", -1, 1, 1, 2, Q("190 mm")))
sketch4.addConstraint(Sketcher.Constraint("DistanceX", -1, 1, 4, 2, Q("175 mm")))
sketch4.addConstraint(Sketcher.Constraint("DistanceX", -1, 1, 9, 2, Q("165 mm")))
sketch4.addConstraint(Sketcher.Constraint("DistanceX", -1, 1, 12, 2, Q("150 mm")))
sketch4.addConstraint(Sketcher.Constraint("DistanceX", -1, 1, 17, 2, Q("140 mm")))
sketch4.addConstraint(Sketcher.Constraint("DistanceX", -1, 1, 20, 2, Q("125 mm")))
sketch4.addConstraint(Sketcher.Constraint("DistanceX", -1, 1, 25, 2, Q("115 mm")))
sketch4.addConstraint(Sketcher.Constraint("DistanceX", -1, 1, 28, 2, Q("100 mm")))
sketch4.addConstraint(Sketcher.Constraint("DistanceX", -1, 1, 33, 2, Q("90 mm")))
sketch4.addConstraint(Sketcher.Constraint("DistanceX", -1, 1, 36, 2, Q("75 mm")))
sketch4.addConstraint(Sketcher.Constraint("DistanceX", -1, 1, 41, 2, Q("65 mm")))
sketch4.addConstraint(Sketcher.Constraint("DistanceX", -1, 1, 44, 2, Q("50 mm")))
sketch4.addConstraint(Sketcher.Constraint("DistanceX", -1, 1, 49, 2, Q("40 mm")))
sketch4.addConstraint(Sketcher.Constraint("DistanceX", -1, 1, 52, 2, Q("25 mm")))
sketch4.addConstraint(Sketcher.Constraint("DistanceX", -1, 1, 57, 2, Q("15 mm")))
pocket1 = doc.addObject("PartDesign::Pocket", "Pocket")
body.addObject(pocket1)
pocket1.Profile = sketch4
pocket1.Length = 5

doc.recompute()
